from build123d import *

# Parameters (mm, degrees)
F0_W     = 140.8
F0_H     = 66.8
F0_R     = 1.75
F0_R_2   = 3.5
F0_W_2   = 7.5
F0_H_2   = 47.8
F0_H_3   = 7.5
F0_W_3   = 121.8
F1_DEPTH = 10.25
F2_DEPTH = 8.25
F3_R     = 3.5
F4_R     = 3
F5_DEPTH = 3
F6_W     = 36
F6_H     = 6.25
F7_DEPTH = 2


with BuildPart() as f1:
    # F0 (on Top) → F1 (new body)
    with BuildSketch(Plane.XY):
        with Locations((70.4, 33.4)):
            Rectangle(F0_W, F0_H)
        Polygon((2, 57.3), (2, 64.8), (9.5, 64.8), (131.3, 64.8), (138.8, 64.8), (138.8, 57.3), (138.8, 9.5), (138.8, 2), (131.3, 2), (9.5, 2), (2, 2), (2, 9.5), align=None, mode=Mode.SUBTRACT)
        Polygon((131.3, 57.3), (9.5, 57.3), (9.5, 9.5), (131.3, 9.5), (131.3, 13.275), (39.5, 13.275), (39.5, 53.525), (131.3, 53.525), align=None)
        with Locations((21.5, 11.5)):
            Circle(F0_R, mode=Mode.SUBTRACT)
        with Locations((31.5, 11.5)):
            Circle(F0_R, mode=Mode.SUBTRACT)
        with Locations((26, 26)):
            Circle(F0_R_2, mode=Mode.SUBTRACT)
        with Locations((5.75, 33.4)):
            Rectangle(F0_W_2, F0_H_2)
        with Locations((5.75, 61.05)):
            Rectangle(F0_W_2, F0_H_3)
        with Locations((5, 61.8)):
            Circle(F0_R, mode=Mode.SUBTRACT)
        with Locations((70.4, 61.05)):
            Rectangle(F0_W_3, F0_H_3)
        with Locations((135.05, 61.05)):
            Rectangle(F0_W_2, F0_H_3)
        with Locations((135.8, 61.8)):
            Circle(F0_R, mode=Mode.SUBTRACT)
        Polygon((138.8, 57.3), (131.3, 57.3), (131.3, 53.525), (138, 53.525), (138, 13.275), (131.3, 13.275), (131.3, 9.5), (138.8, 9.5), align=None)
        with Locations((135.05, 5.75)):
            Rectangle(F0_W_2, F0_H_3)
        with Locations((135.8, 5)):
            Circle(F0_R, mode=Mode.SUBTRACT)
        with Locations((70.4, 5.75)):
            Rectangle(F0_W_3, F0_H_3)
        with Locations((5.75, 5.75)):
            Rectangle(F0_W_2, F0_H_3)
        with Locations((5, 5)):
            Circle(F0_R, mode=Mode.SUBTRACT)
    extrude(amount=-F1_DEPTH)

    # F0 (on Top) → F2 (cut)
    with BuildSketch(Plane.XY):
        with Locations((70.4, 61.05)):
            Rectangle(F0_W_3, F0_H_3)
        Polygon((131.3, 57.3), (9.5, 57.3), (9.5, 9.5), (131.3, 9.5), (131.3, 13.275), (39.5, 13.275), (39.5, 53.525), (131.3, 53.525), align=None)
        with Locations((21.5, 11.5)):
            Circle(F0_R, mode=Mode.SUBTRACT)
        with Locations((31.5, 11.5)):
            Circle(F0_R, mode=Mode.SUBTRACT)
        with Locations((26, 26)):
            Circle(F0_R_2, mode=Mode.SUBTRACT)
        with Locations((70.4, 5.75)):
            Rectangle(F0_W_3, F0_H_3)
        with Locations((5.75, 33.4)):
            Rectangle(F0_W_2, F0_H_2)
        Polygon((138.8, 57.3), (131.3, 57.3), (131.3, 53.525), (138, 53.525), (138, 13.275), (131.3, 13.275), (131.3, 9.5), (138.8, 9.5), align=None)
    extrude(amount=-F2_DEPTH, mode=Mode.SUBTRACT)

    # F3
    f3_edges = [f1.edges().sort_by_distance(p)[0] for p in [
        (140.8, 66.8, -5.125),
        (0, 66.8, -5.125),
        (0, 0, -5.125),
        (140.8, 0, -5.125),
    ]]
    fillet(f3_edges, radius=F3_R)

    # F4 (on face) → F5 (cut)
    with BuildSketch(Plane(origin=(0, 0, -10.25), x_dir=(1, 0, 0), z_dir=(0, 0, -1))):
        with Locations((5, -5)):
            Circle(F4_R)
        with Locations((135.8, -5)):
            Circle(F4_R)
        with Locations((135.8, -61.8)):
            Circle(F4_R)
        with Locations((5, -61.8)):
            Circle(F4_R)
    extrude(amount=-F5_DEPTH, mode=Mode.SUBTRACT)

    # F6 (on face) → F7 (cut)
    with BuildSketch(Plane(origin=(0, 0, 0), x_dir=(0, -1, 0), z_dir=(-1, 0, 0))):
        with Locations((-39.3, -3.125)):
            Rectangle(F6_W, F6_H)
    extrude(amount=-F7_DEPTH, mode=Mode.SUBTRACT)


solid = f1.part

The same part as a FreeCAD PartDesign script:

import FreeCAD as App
import Part
import Sketcher
from FreeCAD import Vector
Q = App.Units.Quantity


def edges_at(feature, points):
    """Names of the edges that pass closest to the given points."""
    edges = feature.Shape.Edges
    near = lambda p: min(range(len(edges)), key=lambda i: edges[i].distToShape(Part.Vertex(*p))[0])
    return sorted({f"Edge{near(p) + 1}" for p in points})


def add_polygon(sketch, points):
    """Adds a closed chain of lines whose ends are joined by coincident constraints."""
    first, n = sketch.GeometryCount, len(points)
    for a, b in zip(points, points[1:] + points[:1]):
        sketch.addGeometry(Part.LineSegment(App.Vector(*a, 0), App.Vector(*b, 0)), False)
    for i in range(n):
        sketch.addConstraint(Sketcher.Constraint("Coincident", first + i, 2, first + (i + 1) % n, 1))

doc = App.newDocument("Part")
body = doc.addObject("PartDesign::Body", "Body")

# Sketch on XY plane
sketch1 = doc.addObject("Sketcher::SketchObject", "Sketch")
body.addObject(sketch1)
sketch1.AttachmentSupport = (doc.XY_Plane, [""])
sketch1.MapMode = "FlatFace"
add_polygon(sketch1, [(0, 66.8), (0, 0), (140.8, 0), (140.8, 66.8)])  # lines 0-3
sketch1.addGeometry(Part.Circle(Vector(5, 5, 0), Vector(0, 0, 1), 1.8), False)  # 4
sketch1.addGeometry(Part.Circle(Vector(21.5, 11.5, 0), Vector(0, 0, 1), 1.8), False)  # 5
sketch1.addGeometry(Part.Circle(Vector(31.5, 11.5, 0), Vector(0, 0, 1), 1.8), False)  # 6
sketch1.addGeometry(Part.Circle(Vector(26, 26, 0), Vector(0, 0, 1), 3.5), False)  # 7
sketch1.addGeometry(Part.Circle(Vector(135.8, 5, 0), Vector(0, 0, 1), 1.8), False)  # 8
sketch1.addGeometry(Part.Circle(Vector(5, 61.8, 0), Vector(0, 0, 1), 1.8), False)  # 9
add_polygon(sketch1, [(39.5, 13.3), (39.5, 53.5), (138, 53.5), (138, 13.3)])  # lines 10-13
sketch1.addGeometry(Part.Circle(Vector(135.8, 61.8, 0), Vector(0, 0, 1), 1.8), False)  # 14
sketch1.addConstraint([
    Sketcher.Constraint("Vertical", 0),
    Sketcher.Constraint("Horizontal", 1),
    Sketcher.Constraint("Vertical", 2),
    Sketcher.Constraint("Horizontal", 3),
    Sketcher.Constraint("Vertical", 10),
    Sketcher.Constraint("Horizontal", 11),
    Sketcher.Constraint("Vertical", 12),
    Sketcher.Constraint("Horizontal", 13),
    Sketcher.Constraint("Coincident", 0, 2, -1, 1),
    Sketcher.Constraint("Equal", 4, 5),
    Sketcher.Constraint("Equal", 5, 6),
    Sketcher.Constraint("Equal", 6, 8),
    Sketcher.Constraint("Equal", 8, 9),
    Sketcher.Constraint("Equal", 9, 14),
    Sketcher.Constraint("Horizontal", 5, 3, 6, 3),
    Sketcher.Constraint("Horizontal", 4, 3, 8, 3),
    Sketcher.Constraint("Horizontal", 9, 3, 14, 3),
    Sketcher.Constraint("Vertical", 4, 3, 9, 3),
    Sketcher.Constraint("Vertical", 8, 3, 14, 3),
    Sketcher.Constraint("Diameter", 7, Q("7 mm")),
    Sketcher.Constraint("Diameter", 4, Q("3.5 mm")),
    Sketcher.Constraint("DistanceX", 1, 1, 1, 2, Q("140.8 mm")),
    Sketcher.Constraint("DistanceX", 11, 1, 11, 2, Q("98.5 mm")),
    Sketcher.Constraint("DistanceY", 0, 2, 0, 1, Q("66.8 mm")),
    Sketcher.Constraint("DistanceX", -1, 1, 4, 3, Q("5 mm")),
    Sketcher.Constraint("DistanceY", -1, 1, 4, 3, Q("5 mm")),
    Sketcher.Constraint("DistanceX", -1, 1, 7, 3, Q("26 mm")),
    Sketcher.Constraint("DistanceY", -1, 1, 7, 3, Q("26 mm")),
    Sketcher.Constraint("DistanceX", -1, 1, 11, 2, Q("138 mm")),
    Sketcher.Constraint("DistanceX", 5, 3, 6, 3, Q("10 mm")),
    Sketcher.Constraint("DistanceX", 8, 3, 1, 2, Q("5 mm")),
    Sketcher.Constraint("DistanceY", 14, 3, 2, 2, Q("5 mm")),
    Sketcher.Constraint("DistanceX", 6, 3, 10, 2, Q("8 mm")),
    Sketcher.Constraint("DistanceY", 10, 1, 10, 2, Q("40.25 mm")),
    Sketcher.Constraint("DistanceY", -1, 1, 5, 3, Q("11.5 mm")),
    Sketcher.Constraint("DistanceY", -1, 1, 10, 2, Q("53.525 mm")),
])
pad1 = doc.addObject("PartDesign::Pad", "Pad")
body.addObject(pad1)
pad1.Profile = sketch1
pad1.Length = 10.25
pad1.Reversed = True

# Sketch on XY plane
sketch2 = doc.addObject("Sketcher::SketchObject", "Sketch001")
body.addObject(sketch2)
sketch2.AttachmentSupport = (doc.XY_Plane, [""])
sketch2.MapMode = "FlatFace"
add_polygon(sketch2, [(9.5, 64.8), (9.5, 57.3), (2, 57.3), (2, 9.5), (9.5, 9.5), (9.5, 2), (131.3, 2), (131.3, 9.5), (138.8, 9.5), (138.8, 57.3), (131.3, 57.3), (131.3, 64.8)])  # lines 0-11
add_polygon(sketch2, [(39.5, 13.3), (39.5, 53.5), (138, 53.5), (138, 13.3)])  # lines 12-15
sketch2.addGeometry(Part.Circle(Vector(21.5, 11.5, 0), Vector(0, 0, 1), 1.8), False)  # 16
sketch2.addGeometry(Part.Circle(Vector(31.5, 11.5, 0), Vector(0, 0, 1), 1.8), False)  # 17
sketch2.addGeometry(Part.Circle(Vector(26, 26, 0), Vector(0, 0, 1), 3.5), False)  # 18
sketch2.addConstraint([
    Sketcher.Constraint("Vertical", 0),
    Sketcher.Constraint("Horizontal", 1),
    Sketcher.Constraint("Vertical", 2),
    Sketcher.Constraint("Horizontal", 3),
    Sketcher.Constraint("Vertical", 4),
    Sketcher.Constraint("Horizontal", 5),
    Sketcher.Constraint("Vertical", 6),
    Sketcher.Constraint("Horizontal", 7),
    Sketcher.Constraint("Vertical", 8),
    Sketcher.Constraint("Horizontal", 9),
    Sketcher.Constraint("Vertical", 10),
    Sketcher.Constraint("Horizontal", 11),
    Sketcher.Constraint("Vertical", 12),
    Sketcher.Constraint("Horizontal", 13),
    Sketcher.Constraint("Vertical", 14),
    Sketcher.Constraint("Horizontal", 15),
    Sketcher.Constraint("Equal", 16, 17),
    Sketcher.Constraint("Horizontal", 16, 3, 17, 3),
    Sketcher.Constraint("Horizontal", 3, 2, 6, 2),
    Sketcher.Constraint("Horizontal", 1, 2, 8, 2),
    Sketcher.Constraint("Vertical", 0, 2, 3, 2),
    Sketcher.Constraint("Vertical", 6, 2, 9, 2),
    Sketcher.Constraint("Equal", 3, 7),
    Sketcher.Constraint("Equal", 9, 0),
    Sketcher.Constraint("Equal", 0, 4),
    Sketcher.Constraint("Diameter", 18, Q("7 mm")),
    Sketcher.Constraint("Diameter", 16, Q("3.5 mm")),
    Sketcher.Constraint("DistanceX", 1, 2, 1, 1, Q("7.5 mm")),
    Sketcher.Constraint("DistanceX", 5, 1, 5, 2, Q("121.8 mm")),
    Sketcher.Constraint("DistanceX", 13, 1, 13, 2, Q("98.5 mm")),
    Sketcher.Constraint("DistanceY", 2, 2, 2, 1, Q("47.8 mm")),
    Sketcher.Constraint("DistanceX", -1, 1, 18, 3, Q("26 mm")),
    Sketcher.Constraint("DistanceY", -1, 1, 18, 3, Q("26 mm")),
    Sketcher.Constraint("DistanceX", -1, 1, 1, 2, Q("2 mm")),
    Sketcher.Constraint("DistanceY", -1, 1, 4, 2, Q("2 mm")),
    Sketcher.Constraint("DistanceX", -1, 1, 13, 2, Q("138 mm")),
    Sketcher.Constraint("DistanceX", 16, 3, 17, 3, Q("10 mm")),
    Sketcher.Constraint("DistanceX", 0, 2, 16, 3, Q("12 mm")),
    Sketcher.Constraint("DistanceY", 2, 2, 16, 3, Q("2 mm")),
    Sketcher.Constraint("DistanceY", 12, 1, 12, 2, Q("40.25 mm")),
    Sketcher.Constraint("DistanceY", -1, 1, 12, 2, Q("53.525 mm")),
])
pocket1 = doc.addObject("PartDesign::Pocket", "Pocket")
body.addObject(pocket1)
pocket1.Profile = sketch2
pocket1.Length = 8.25
doc.recompute()

fillet = doc.addObject("PartDesign::Fillet", "Fillet")
body.addObject(fillet)
fillet.Base = (pocket1, edges_at(pocket1, [
    (140.8, 66.8, -5.125),
    (0, 66.8, -5.125),
    (0, 0, -5.125),
    (140.8, 0, -5.125),
]))
fillet.Radius = 3.5

# Sketch on XY plane
sketch3 = doc.addObject("Sketcher::SketchObject", "Sketch002")
body.addObject(sketch3)
sketch3.AttachmentSupport = (doc.XY_Plane, [""])
sketch3.MapMode = "FlatFace"
sketch3.AttachmentOffset = App.Placement(Vector(0, 0, -10.25), App.Rotation())
sketch3.addGeometry([
    Part.Circle(Vector(5, 5, 0), Vector(0, 0, 1), 3),
    Part.Circle(Vector(135.8, 5, 0), Vector(0, 0, 1), 3),
    Part.Circle(Vector(135.8, 61.8, 0), Vector(0, 0, 1), 3),
    Part.Circle(Vector(5, 61.8, 0), Vector(0, 0, 1), 3),
], False)
sketch3.addConstraint([
    Sketcher.Constraint("Equal", 0, 1),
    Sketcher.Constraint("Equal", 1, 2),
    Sketcher.Constraint("Equal", 2, 3),
    Sketcher.Constraint("Horizontal", 0, 3, 1, 3),
    Sketcher.Constraint("Horizontal", 2, 3, 3, 3),
    Sketcher.Constraint("Vertical", 1, 3, 2, 3),
    Sketcher.Constraint("Vertical", 0, 3, 3, 3),
    Sketcher.Constraint("Diameter", 0, Q("6 mm")),
    Sketcher.Constraint("DistanceX", -1, 1, 0, 3, Q("5 mm")),
    Sketcher.Constraint("DistanceY", -1, 1, 0, 3, Q("5 mm")),
    Sketcher.Constraint("DistanceX", -1, 1, 1, 3, Q("135.8 mm")),
    Sketcher.Constraint("DistanceY", -1, 1, 2, 3, Q("61.8 mm")),
])
pocket2 = doc.addObject("PartDesign::Pocket", "Pocket001")
body.addObject(pocket2)
pocket2.Profile = sketch3
pocket2.Length = 3
pocket2.Reversed = True

# Sketch on YZ plane
sketch4 = doc.addObject("Sketcher::SketchObject", "Sketch003")
body.addObject(sketch4)
sketch4.AttachmentSupport = (doc.YZ_Plane, [""])
sketch4.MapMode = "FlatFace"
add_polygon(sketch4, [(57, 0), (57, -6), (21, -6), (21, 0)])  # lines 0-3
sketch4.addConstraint([
    Sketcher.Constraint("Vertical", 0),
    Sketcher.Constraint("Horizontal", 1),
    Sketcher.Constraint("Vertical", 2),
    Sketcher.Constraint("Horizontal", 3),
    Sketcher.Constraint("PointOnObject", 2, 2, -1),
    Sketcher.Constraint("DistanceX", 1, 2, 1, 1, Q("36 mm")),
    Sketcher.Constraint("DistanceY", 0, 2, 0, 1, Q("6.25 mm")),
    Sketcher.Constraint("DistanceX", -1, 1, 0, 2, Q("57.3 mm")),
])
pocket3 = doc.addObject("PartDesign::Pocket", "Pocket002")
body.addObject(pocket3)
pocket3.Profile = sketch4
pocket3.Length = 2
pocket3.Reversed = True

doc.recompute()
